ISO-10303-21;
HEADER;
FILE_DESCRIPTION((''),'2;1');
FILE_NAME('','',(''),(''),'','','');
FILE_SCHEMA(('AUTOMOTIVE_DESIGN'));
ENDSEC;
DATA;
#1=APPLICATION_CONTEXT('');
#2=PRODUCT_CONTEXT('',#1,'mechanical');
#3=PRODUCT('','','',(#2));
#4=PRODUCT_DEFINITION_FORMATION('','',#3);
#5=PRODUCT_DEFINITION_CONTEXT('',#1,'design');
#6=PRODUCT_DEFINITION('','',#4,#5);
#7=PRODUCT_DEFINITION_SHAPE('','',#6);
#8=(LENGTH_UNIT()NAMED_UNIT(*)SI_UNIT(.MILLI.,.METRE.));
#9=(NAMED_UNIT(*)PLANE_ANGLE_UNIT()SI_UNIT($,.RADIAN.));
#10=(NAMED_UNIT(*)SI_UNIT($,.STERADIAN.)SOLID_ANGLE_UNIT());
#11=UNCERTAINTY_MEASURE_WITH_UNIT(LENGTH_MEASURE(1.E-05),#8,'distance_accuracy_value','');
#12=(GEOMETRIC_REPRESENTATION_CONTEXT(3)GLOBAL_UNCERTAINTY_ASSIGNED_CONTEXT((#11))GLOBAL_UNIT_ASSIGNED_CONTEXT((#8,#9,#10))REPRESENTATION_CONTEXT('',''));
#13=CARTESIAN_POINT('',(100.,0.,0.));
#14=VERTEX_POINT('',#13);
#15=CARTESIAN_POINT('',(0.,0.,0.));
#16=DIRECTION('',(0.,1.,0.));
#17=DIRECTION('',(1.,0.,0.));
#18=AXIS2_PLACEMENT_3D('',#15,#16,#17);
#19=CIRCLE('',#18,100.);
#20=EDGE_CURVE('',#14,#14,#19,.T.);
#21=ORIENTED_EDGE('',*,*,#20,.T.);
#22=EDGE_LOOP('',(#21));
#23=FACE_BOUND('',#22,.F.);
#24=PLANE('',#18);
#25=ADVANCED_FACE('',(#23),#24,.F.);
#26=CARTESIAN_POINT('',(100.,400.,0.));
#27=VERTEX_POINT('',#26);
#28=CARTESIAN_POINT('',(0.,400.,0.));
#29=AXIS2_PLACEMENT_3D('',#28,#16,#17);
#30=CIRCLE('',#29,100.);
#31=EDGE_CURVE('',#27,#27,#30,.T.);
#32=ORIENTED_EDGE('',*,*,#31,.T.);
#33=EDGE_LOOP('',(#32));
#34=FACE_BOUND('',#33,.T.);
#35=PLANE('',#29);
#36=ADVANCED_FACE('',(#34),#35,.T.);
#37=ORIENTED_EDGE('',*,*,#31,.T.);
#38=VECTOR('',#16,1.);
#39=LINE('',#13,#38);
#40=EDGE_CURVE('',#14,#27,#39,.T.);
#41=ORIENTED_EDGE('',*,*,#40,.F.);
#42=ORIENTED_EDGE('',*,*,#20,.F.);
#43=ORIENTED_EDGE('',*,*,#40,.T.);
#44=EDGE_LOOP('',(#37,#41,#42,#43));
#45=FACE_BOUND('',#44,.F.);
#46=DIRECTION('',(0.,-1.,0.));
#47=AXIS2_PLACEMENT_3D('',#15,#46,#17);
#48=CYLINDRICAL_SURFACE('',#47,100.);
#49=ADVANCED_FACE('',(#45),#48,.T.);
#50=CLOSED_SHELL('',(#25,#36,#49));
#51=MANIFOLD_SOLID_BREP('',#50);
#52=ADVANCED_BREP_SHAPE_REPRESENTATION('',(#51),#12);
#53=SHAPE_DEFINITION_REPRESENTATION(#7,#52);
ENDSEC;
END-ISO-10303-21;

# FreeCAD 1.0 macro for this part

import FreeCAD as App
import Part
import Sketcher
Q = App.Units.Quantity

doc = App.newDocument("Part")
body = doc.addObject("PartDesign::Body", "Body")

# Sketch on XZ plane
sketch1 = body.newObject("Sketcher::SketchObject", "Sketch")
sketch1.AttachmentSupport = (doc.getObject("XZ_Plane"), [""])
sketch1.MapMode = "FlatFace"
sketch1.addGeometry(Part.Circle(App.Vector(0, 0, 0), App.Vector(0, 0, 1), 100), False)
sketch1.addConstraint([
    Sketcher.Constraint("Coincident", 0, 3, -1, 1),
    Sketcher.Constraint("Diameter", 0, Q("200 mm")),
])
pad1 = body.newObject("PartDesign::Pad", "Pad")
pad1.Profile = sketch1
pad1.Length = 400
pad1.Reversed = True

doc.recompute()
